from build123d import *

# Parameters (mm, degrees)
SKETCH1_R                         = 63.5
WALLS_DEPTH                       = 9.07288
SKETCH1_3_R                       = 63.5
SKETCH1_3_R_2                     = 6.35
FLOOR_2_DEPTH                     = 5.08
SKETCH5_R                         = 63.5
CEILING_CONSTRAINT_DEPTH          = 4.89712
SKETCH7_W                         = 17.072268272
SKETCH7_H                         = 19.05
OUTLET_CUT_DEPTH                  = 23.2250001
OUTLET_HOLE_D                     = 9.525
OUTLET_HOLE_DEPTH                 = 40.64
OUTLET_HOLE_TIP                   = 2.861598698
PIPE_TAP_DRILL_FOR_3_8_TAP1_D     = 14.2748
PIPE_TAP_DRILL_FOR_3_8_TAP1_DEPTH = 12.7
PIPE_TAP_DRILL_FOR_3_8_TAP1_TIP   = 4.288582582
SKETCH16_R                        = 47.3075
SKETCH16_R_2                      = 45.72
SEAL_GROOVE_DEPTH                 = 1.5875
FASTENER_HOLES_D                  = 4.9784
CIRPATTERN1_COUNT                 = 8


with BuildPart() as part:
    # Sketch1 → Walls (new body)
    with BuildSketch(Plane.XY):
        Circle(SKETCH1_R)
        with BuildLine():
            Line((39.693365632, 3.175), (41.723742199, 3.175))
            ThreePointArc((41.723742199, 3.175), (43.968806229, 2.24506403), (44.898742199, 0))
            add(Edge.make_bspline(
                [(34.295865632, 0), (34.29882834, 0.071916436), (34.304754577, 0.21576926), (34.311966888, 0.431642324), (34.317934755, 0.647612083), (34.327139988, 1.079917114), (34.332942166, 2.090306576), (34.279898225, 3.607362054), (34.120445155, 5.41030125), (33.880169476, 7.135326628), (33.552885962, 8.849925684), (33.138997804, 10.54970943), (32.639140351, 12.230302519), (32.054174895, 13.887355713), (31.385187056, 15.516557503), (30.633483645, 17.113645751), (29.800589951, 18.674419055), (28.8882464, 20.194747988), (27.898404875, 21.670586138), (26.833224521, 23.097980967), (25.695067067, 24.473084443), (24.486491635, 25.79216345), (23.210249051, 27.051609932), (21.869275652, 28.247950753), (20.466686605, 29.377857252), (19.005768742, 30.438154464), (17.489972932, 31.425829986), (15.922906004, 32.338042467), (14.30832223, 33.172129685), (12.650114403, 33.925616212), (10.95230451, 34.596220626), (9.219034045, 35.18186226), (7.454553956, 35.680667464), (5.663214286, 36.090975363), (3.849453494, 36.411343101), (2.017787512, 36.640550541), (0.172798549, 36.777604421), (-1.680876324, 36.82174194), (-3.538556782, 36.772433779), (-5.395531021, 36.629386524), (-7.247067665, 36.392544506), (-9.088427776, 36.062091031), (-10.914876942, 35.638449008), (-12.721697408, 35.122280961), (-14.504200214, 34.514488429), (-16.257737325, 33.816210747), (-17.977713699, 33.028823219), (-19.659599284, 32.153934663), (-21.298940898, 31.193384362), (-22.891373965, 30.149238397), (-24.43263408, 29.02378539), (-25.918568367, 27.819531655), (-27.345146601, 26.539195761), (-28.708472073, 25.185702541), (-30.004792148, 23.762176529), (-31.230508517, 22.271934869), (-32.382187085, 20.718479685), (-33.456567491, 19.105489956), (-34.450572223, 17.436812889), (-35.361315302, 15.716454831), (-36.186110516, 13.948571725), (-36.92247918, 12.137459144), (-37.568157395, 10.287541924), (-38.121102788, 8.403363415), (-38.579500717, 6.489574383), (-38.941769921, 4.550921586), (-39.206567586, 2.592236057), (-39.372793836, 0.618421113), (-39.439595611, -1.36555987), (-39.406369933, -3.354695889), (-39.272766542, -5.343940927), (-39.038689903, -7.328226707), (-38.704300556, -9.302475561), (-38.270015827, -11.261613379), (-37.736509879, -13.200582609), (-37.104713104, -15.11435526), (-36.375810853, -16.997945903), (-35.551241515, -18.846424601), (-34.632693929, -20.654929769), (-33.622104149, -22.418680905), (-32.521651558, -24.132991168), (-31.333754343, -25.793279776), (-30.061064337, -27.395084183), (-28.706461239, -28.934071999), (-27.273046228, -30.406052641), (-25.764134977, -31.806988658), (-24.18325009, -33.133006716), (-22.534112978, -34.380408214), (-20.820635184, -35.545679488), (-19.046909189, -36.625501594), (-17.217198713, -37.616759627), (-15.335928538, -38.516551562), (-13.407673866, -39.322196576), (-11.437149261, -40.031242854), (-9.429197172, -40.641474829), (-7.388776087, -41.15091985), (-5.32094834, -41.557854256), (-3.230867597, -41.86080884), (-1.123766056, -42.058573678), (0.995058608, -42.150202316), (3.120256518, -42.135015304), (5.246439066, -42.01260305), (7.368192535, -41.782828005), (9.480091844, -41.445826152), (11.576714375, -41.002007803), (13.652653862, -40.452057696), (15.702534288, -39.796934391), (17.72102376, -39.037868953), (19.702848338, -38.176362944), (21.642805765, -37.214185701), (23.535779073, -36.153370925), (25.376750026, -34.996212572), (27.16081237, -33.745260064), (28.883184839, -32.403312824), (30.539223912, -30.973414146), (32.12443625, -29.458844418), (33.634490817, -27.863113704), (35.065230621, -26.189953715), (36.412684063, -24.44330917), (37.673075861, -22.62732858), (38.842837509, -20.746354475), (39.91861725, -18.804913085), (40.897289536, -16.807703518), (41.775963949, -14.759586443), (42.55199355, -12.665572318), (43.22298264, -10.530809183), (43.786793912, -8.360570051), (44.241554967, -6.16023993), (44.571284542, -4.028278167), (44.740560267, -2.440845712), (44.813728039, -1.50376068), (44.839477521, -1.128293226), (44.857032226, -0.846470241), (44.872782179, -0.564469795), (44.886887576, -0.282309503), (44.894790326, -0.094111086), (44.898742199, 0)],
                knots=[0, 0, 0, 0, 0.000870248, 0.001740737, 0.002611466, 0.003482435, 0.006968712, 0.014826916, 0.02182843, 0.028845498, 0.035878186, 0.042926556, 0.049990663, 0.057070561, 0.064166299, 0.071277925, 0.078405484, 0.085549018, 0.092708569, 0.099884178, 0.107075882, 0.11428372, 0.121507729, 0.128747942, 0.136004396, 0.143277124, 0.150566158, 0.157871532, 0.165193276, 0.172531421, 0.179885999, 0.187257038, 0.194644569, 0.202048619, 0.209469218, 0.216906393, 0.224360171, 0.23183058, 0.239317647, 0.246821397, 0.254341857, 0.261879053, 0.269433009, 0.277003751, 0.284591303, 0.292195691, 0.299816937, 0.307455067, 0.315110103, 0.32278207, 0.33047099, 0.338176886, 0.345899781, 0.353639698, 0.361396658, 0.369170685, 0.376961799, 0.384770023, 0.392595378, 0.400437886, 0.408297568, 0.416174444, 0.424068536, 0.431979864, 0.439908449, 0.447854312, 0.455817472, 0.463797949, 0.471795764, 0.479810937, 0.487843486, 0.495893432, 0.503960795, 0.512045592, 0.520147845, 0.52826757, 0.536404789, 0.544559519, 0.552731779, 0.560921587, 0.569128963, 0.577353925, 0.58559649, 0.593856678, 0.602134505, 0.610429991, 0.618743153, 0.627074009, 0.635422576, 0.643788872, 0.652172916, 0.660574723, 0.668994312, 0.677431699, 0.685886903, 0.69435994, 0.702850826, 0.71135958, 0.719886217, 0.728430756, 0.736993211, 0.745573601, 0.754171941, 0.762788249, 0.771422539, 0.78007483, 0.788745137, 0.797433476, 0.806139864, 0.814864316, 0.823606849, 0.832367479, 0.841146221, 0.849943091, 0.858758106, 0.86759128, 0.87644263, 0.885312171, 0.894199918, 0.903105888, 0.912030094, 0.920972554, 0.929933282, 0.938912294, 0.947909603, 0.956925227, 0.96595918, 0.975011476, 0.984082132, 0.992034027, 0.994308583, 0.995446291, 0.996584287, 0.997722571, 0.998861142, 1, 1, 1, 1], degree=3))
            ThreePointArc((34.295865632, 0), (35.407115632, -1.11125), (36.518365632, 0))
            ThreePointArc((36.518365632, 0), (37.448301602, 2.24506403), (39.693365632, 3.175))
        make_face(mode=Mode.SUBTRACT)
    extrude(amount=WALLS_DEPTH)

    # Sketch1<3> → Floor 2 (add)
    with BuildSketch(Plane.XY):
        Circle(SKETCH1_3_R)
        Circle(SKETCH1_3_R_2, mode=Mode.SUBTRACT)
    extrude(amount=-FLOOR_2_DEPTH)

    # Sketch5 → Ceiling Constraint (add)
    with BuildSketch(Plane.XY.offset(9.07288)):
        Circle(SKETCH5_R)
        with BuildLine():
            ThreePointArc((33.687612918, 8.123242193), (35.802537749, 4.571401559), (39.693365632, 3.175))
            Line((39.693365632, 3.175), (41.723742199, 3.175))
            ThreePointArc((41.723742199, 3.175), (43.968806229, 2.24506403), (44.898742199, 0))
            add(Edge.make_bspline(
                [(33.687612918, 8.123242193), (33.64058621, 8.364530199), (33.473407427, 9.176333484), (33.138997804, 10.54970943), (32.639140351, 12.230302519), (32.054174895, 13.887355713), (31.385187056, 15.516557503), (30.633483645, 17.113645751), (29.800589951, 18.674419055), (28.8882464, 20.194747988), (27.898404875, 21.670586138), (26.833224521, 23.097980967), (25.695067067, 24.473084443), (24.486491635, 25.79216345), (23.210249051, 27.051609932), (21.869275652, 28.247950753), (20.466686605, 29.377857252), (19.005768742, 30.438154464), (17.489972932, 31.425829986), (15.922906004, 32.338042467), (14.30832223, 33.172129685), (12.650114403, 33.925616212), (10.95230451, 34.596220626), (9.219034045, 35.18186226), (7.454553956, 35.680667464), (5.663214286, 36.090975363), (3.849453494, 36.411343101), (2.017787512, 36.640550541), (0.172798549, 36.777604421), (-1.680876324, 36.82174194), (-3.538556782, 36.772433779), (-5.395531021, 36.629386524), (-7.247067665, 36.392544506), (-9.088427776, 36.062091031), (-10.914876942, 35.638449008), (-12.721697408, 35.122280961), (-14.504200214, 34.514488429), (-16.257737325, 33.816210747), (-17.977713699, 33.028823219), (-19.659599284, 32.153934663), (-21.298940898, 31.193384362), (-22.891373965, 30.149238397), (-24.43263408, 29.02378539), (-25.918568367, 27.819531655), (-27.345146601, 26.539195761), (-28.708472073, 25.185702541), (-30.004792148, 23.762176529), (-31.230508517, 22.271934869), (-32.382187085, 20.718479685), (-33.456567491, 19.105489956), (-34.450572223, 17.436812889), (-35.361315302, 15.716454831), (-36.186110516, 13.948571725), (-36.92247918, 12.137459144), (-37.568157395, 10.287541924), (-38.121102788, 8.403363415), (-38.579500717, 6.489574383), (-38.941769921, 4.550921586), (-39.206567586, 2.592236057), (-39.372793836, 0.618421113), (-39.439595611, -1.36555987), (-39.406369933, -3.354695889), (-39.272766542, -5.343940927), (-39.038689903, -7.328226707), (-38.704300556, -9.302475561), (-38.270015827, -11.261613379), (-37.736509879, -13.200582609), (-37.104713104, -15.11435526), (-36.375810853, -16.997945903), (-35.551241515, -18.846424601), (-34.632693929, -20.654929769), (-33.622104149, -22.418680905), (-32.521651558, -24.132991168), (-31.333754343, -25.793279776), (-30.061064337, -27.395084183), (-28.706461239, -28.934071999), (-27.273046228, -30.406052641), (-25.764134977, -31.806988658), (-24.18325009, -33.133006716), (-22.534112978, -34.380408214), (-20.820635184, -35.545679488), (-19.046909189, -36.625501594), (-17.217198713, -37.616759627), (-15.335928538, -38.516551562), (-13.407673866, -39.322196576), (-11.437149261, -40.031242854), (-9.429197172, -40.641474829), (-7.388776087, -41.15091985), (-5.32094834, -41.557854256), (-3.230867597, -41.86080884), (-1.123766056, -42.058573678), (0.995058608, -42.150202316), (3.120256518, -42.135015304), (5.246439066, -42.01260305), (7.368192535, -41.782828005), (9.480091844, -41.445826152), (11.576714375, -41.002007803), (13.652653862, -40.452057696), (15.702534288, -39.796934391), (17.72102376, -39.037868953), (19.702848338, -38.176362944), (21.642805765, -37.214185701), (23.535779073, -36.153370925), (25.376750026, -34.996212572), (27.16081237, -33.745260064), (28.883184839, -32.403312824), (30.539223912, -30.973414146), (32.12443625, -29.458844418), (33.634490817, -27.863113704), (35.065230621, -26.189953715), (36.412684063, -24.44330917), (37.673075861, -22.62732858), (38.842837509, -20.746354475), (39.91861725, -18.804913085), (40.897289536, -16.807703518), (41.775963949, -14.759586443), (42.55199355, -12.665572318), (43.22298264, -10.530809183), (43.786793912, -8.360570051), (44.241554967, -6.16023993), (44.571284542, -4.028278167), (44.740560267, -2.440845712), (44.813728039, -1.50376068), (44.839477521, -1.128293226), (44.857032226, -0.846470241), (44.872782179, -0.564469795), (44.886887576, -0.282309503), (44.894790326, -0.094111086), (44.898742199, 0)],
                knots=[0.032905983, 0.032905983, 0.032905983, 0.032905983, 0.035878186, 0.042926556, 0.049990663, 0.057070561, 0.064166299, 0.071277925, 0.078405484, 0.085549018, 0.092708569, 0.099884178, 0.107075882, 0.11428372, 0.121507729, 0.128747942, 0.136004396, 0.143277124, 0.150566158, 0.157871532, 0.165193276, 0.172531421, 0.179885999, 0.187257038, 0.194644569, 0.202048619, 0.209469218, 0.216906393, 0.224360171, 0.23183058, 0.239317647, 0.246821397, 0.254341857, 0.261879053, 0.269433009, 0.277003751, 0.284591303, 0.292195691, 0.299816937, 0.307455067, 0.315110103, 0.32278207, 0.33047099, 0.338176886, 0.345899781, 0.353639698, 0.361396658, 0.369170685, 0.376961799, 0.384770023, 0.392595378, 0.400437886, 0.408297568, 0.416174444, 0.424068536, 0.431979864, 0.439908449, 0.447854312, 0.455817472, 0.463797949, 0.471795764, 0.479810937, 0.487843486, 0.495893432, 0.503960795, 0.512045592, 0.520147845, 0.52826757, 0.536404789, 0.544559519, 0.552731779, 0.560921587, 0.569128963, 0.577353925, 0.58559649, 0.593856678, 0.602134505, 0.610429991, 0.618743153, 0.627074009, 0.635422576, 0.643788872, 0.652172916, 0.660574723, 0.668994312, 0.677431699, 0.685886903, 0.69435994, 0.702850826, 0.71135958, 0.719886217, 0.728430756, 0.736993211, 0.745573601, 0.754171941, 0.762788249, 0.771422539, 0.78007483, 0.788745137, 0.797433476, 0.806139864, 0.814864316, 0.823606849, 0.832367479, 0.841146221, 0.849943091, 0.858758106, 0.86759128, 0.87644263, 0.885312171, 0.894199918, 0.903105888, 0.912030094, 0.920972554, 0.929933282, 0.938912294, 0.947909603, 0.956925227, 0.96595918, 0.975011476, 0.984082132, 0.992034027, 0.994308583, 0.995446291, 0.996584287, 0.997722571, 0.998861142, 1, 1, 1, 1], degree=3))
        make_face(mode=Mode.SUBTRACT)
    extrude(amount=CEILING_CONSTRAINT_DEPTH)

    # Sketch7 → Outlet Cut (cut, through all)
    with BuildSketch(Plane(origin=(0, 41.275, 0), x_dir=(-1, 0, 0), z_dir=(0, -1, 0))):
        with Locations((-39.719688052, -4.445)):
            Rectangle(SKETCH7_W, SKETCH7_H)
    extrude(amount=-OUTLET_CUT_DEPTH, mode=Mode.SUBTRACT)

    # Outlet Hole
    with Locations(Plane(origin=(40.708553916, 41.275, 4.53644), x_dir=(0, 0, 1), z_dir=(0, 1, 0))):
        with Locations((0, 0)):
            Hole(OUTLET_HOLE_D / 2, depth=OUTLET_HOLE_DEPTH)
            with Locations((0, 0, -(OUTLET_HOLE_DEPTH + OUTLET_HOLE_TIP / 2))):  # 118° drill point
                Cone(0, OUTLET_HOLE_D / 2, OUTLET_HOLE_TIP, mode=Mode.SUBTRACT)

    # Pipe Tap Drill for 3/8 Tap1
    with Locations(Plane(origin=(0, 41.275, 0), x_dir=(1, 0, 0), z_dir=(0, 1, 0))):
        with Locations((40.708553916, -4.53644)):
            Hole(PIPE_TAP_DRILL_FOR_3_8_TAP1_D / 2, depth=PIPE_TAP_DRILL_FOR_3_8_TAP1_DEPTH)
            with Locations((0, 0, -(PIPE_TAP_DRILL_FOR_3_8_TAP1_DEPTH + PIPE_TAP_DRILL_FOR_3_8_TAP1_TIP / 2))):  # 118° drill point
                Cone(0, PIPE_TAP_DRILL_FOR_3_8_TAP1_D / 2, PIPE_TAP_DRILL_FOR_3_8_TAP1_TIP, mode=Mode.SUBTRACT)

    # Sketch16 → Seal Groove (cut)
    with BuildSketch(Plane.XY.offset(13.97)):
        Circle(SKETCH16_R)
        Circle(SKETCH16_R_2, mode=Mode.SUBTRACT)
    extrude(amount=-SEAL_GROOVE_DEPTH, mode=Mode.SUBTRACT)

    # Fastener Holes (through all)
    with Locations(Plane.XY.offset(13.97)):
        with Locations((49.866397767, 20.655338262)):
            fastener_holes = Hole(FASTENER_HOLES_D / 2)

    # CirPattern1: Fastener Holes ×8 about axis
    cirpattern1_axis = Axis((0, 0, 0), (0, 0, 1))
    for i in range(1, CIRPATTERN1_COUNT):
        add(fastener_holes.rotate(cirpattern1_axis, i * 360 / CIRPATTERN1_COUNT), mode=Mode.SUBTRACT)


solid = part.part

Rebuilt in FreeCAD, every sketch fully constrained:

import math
import FreeCAD as App
import Part
import Sketcher

V = App.Vector
Q = App.Units.Quantity

doc = App.newDocument("Part")
params = doc.addObject("Spreadsheet::Sheet", "Params")
for row, (alias, value) in enumerate([
    ("sketch1_diameter", "5 in"),
    ("sketch1_radius", "0.125 in"),
    ("pad1_length", "0.3572 in"),
    ("sketch2_diameter", "5 in"),
    ("sketch2_diameter2", "0.5 in"),
    ("pad2_length", "0.2 in"),
    ("sketch3_diameter", "5 in"),
    ("sketch3_radius", "0.125 in"),
    ("pad3_length", "0.1928 in"),
    ("sketch4_height", "0.75 in"),
    ("sketch5_diameter", "0.375 in"),
    ("hole_diameter", "0.375 in"),
    ("hole_depth", "1.6 in"),
    ("sketch6_diameter", "0.562 in"),
    ("hole2_diameter", "0.562 in"),
    ("hole2_depth", "0.5 in"),
    ("sketch7_diameter", "3.6 in"),
    ("sketch7_diameter2", "3.725 in"),
    ("pocket2_length", "0.0625 in"),
    ("sketch8_diameter", "0.196 in"),
    ("hole3_diameter", "0.196 in"),
], start=1):
    params.set(f"A{row}", alias)
    params.set(f"B{row}", "=" + value)
    params.setAlias(f"B{row}", alias)

body = doc.addObject("PartDesign::Body", "Body")

# Sketch on XY plane
sketch1 = body.newObject("Sketcher::SketchObject", "Sketch")
sketch1.AttachmentSupport = (doc.getObject("XY_Plane"), [""])
sketch1.MapMode = "FlatFace"
sketch1.addGeometry([
    Part.Circle(V(0, 0, 0), V(0, 0, 1), 63.5),  # 0
    Part.ArcOfCircle(Part.Circle(V(39.693366, 0, 0), V(0, 0, 1), 3.175), math.radians(90), math.radians(180)),  # 1
    Part.LineSegment(V(39.693366, 3.175, 0), V(41.723742, 3.175, 0)),  # 2
    Part.ArcOfCircle(Part.Circle(V(41.723742, 0, 0), V(0, 0, 1), 3.175), math.radians(0), math.radians(90)),  # 3
    Part.BSplineCurve([V(34.295866, 0, 0), V(34.298828, 0.071916, 0), V(34.304755, 0.215769, 0), V(34.311967, 0.431642, 0), V(34.317935, 0.647612, 0), V(34.32714, 1.079917, 0), V(34.332942, 2.090307, 0), V(34.279898, 3.607362, 0), V(34.120445, 5.410301, 0), V(33.880169, 7.135327, 0), V(33.552886, 8.849926, 0), V(33.138998, 10.549709, 0), V(32.63914, 12.230303, 0), V(32.054175, 13.887356, 0), V(31.385187, 15.516558, 0), V(30.633484, 17.113646, 0), V(29.80059, 18.674419, 0), V(28.888246, 20.194748, 0), V(27.898405, 21.670586, 0), V(26.833225, 23.097981, 0), V(25.695067, 24.473084, 0), V(24.486492, 25.792163, 0), V(23.210249, 27.05161, 0), V(21.869276, 28.247951, 0), V(20.466687, 29.377857, 0), V(19.005769, 30.438154, 0), V(17.489973, 31.42583, 0), V(15.922906, 32.338042, 0), V(14.308322, 33.17213, 0), V(12.650114, 33.925616, 0), V(10.952305, 34.596221, 0), V(9.219034, 35.181862, 0), V(7.454554, 35.680667, 0), V(5.663214, 36.090975, 0), V(3.849453, 36.411343, 0), V(2.017788, 36.640551, 0), V(0.172799, 36.777604, 0), V(-1.680876, 36.821742, 0), V(-3.538557, 36.772434, 0), V(-5.395531, 36.629387, 0), V(-7.247068, 36.392545, 0), V(-9.088428, 36.062091, 0), V(-10.914877, 35.638449, 0), V(-12.721697, 35.122281, 0), V(-14.5042, 34.514488, 0), V(-16.257737, 33.816211, 0), V(-17.977714, 33.028823, 0), V(-19.659599, 32.153935, 0), V(-21.298941, 31.193384, 0), V(-22.891374, 30.149238, 0), V(-24.432634, 29.023785, 0), V(-25.918568, 27.819532, 0), V(-27.345147, 26.539196, 0), V(-28.708472, 25.185703, 0), V(-30.004792, 23.762177, 0), V(-31.230509, 22.271935, 0), V(-32.382187, 20.71848, 0), V(-33.456567, 19.10549, 0), V(-34.450572, 17.436813, 0), V(-35.361315, 15.716455, 0), V(-36.186111, 13.948572, 0), V(-36.922479, 12.137459, 0), V(-37.568157, 10.287542, 0), V(-38.121103, 8.403363, 0), V(-38.579501, 6.489574, 0), V(-38.94177, 4.550922, 0), V(-39.206568, 2.592236, 0), V(-39.372794, 0.618421, 0), V(-39.439596, -1.36556, 0), V(-39.40637, -3.354696, 0), V(-39.272767, -5.343941, 0), V(-39.03869, -7.328227, 0), V(-38.704301, -9.302476, 0), V(-38.270016, -11.261613, 0), V(-37.73651, -13.200583, 0), V(-37.104713, -15.114355, 0), V(-36.375811, -16.997946, 0), V(-35.551242, -18.846425, 0), V(-34.632694, -20.65493, 0), V(-33.622104, -22.418681, 0), V(-32.521652, -24.132991, 0), V(-31.333754, -25.79328, 0), V(-30.061064, -27.395084, 0), V(-28.706461, -28.934072, 0), V(-27.273046, -30.406053, 0), V(-25.764135, -31.806989, 0), V(-24.18325, -33.133007, 0), V(-22.534113, -34.380408, 0), V(-20.820635, -35.545679, 0), V(-19.046909, -36.625502, 0), V(-17.217199, -37.61676, 0), V(-15.335929, -38.516552, 0), V(-13.407674, -39.322197, 0), V(-11.437149, -40.031243, 0), V(-9.429197, -40.641475, 0), V(-7.388776, -41.15092, 0), V(-5.320948, -41.557854, 0), V(-3.230868, -41.860809, 0), V(-1.123766, -42.058574, 0), V(0.995059, -42.150202, 0), V(3.120257, -42.135015, 0), V(5.246439, -42.012603, 0), V(7.368193, -41.782828, 0), V(9.480092, -41.445826, 0), V(11.576714, -41.002008, 0), V(13.652654, -40.452058, 0), V(15.702534, -39.796934, 0), V(17.721024, -39.037869, 0), V(19.702848, -38.176363, 0), V(21.642806, -37.214186, 0), V(23.535779, -36.153371, 0), V(25.37675, -34.996213, 0), V(27.160812, -33.74526, 0), V(28.883185, -32.403313, 0), V(30.539224, -30.973414, 0), V(32.124436, -29.458844, 0), V(33.634491, -27.863114, 0), V(35.065231, -26.189954, 0), V(36.412684, -24.443309, 0), V(37.673076, -22.627329, 0), V(38.842838, -20.746354, 0), V(39.918617, -18.804913, 0), V(40.89729, -16.807704, 0), V(41.775964, -14.759586, 0), V(42.551994, -12.665572, 0), V(43.222983, -10.530809, 0), V(43.786794, -8.36057, 0), V(44.241555, -6.16024, 0), V(44.571285, -4.028278, 0), V(44.74056, -2.440846, 0), V(44.813728, -1.503761, 0), V(44.839478, -1.128293, 0), V(44.857032, -0.84647, 0), V(44.872782, -0.56447, 0), V(44.886888, -0.28231, 0), V(44.89479, -0.094111, 0), V(44.898742, 0, 0)], [4, 1, 1, 1, 1, 1, 1, 1, 1, 1, 1, 1, 1, 1, 1, 1, 1, 1, 1, 1, 1, 1, 1, 1, 1, 1, 1, 1, 1, 1, 1, 1, 1, 1, 1, 1, 1, 1, 1, 1, 1, 1, 1, 1, 1, 1, 1, 1, 1, 1, 1, 1, 1, 1, 1, 1, 1, 1, 1, 1, 1, 1, 1, 1, 1, 1, 1, 1, 1, 1, 1, 1, 1, 1, 1, 1, 1, 1, 1, 1, 1, 1, 1, 1, 1, 1, 1, 1, 1, 1, 1, 1, 1, 1, 1, 1, 1, 1, 1, 1, 1, 1, 1, 1, 1, 1, 1, 1, 1, 1, 1, 1, 1, 1, 1, 1, 1, 1, 1, 1, 1, 1, 1, 1, 1, 1, 1, 1, 1, 1, 1, 1, 1, 1, 4], [0, 0.000870248, 0.001740737, 0.002611466, 0.003482435, 0.006968712, 0.014826916, 0.02182843, 0.028845498, 0.035878186, 0.042926556, 0.049990663, 0.057070561, 0.064166299, 0.071277925, 0.078405484, 0.085549018, 0.092708569, 0.099884178, 0.107075882, 0.11428372, 0.121507729, 0.128747942, 0.136004396, 0.143277124, 0.150566158, 0.157871532, 0.165193276, 0.172531421, 0.179885999, 0.187257038, 0.194644569, 0.202048619, 0.209469218, 0.216906393, 0.224360171, 0.23183058, 0.239317647, 0.246821397, 0.254341857, 0.261879053, 0.269433009, 0.277003751, 0.284591303, 0.292195691, 0.299816937, 0.307455067, 0.315110103, 0.32278207, 0.33047099, 0.338176886, 0.345899781, 0.353639698, 0.361396658, 0.369170685, 0.376961799, 0.384770023, 0.392595378, 0.400437886, 0.408297568, 0.416174444, 0.424068536, 0.431979864, 0.439908449, 0.447854312, 0.455817472, 0.463797949, 0.471795764, 0.479810937, 0.487843486, 0.495893432, 0.503960795, 0.512045592, 0.520147845, 0.52826757, 0.536404789, 0.544559519, 0.552731779, 0.560921587, 0.569128963, 0.577353925, 0.58559649, 0.593856678, 0.602134505, 0.610429991, 0.618743153, 0.627074009, 0.635422576, 0.643788872, 0.652172916, 0.660574723, 0.668994312, 0.677431699, 0.685886903, 0.69435994, 0.702850826, 0.71135958, 0.719886217, 0.728430756, 0.736993211, 0.745573601, 0.754171941, 0.762788249, 0.771422539, 0.78007483, 0.788745137, 0.797433476, 0.806139864, 0.814864316, 0.823606849, 0.832367479, 0.841146221, 0.849943091, 0.858758106, 0.86759128, 0.87644263, 0.885312171, 0.894199918, 0.903105888, 0.912030094, 0.920972554, 0.929933282, 0.938912294, 0.947909603, 0.956925227, 0.96595918, 0.975011476, 0.984082132, 0.992034027, 0.994308583, 0.995446291, 0.996584287, 0.997722571, 0.998861142, 1], False, 3, [1, 1, 1, 1, 1, 1, 1, 1, 1, 1, 1, 1, 1, 1, 1, 1, 1, 1, 1, 1, 1, 1, 1, 1, 1, 1, 1, 1, 1, 1, 1, 1, 1, 1, 1, 1, 1, 1, 1, 1, 1, 1, 1, 1, 1, 1, 1, 1, 1, 1, 1, 1, 1, 1, 1, 1, 1, 1, 1, 1, 1, 1, 1, 1, 1, 1, 1, 1, 1, 1, 1, 1, 1, 1, 1, 1, 1, 1, 1, 1, 1, 1, 1, 1, 1, 1, 1, 1, 1, 1, 1, 1, 1, 1, 1, 1, 1, 1, 1, 1, 1, 1, 1, 1, 1, 1, 1, 1, 1, 1, 1, 1, 1, 1, 1, 1, 1, 1, 1, 1, 1, 1, 1, 1, 1, 1, 1, 1, 1, 1, 1, 1, 1, 1, 1, 1, 1], False),  # 4
    Part.ArcOfCircle(Part.Circle(V(35.407116, 0, 0), V(0, 0, 1), 1.11125), math.radians(180), math.radians(360)),  # 5
], False)
sketch1.addConstraint([
    Sketcher.Constraint("Block", 4),
    Sketcher.Constraint("Tangent", 1, 1, 2, 1),
    Sketcher.Constraint("Tangent", 2, 2, 3, 2),
    Sketcher.Constraint("Coincident", 3, 1, 4, 2),
    Sketcher.Constraint("Coincident", 4, 1, 5, 1),
    Sketcher.Constraint("Tangent", 5, 2, 1, 2),
    Sketcher.Constraint("Horizontal", 2),
    Sketcher.Constraint("Coincident", 0, 3, -1, 1),
    Sketcher.Constraint("Equal", 1, 3),
    Sketcher.Constraint("PointOnObject", 1, 3, -1),
    Sketcher.Constraint("PointOnObject", 5, 3, -1),
    Sketcher.Constraint("Diameter", 0, Q("5 in")),
    Sketcher.Constraint("Radius", 1, Q("0.125 in")),
    Sketcher.Constraint("Radius", 5, Q("1.11125 mm")),
])
sketch1.setExpression("Constraints[11]", "Params.sketch1_diameter")
sketch1.setExpression("Constraints[12]", "Params.sketch1_radius")
pad1 = body.newObject("PartDesign::Pad", "Pad")
pad1.Profile = sketch1
pad1.setExpression("Length", "Params.pad1_length")

# Sketch on XY plane
sketch2 = body.newObject("Sketcher::SketchObject", "Sketch001")
sketch2.AttachmentSupport = (doc.getObject("XY_Plane"), [""])
sketch2.MapMode = "FlatFace"
sketch2.addGeometry([
    Part.Circle(V(0, 0, 0), V(0, 0, 1), 64),
    Part.Circle(V(0, 0, 0), V(0, 0, 1), 6),
], False)
sketch2.addConstraint([
    Sketcher.Constraint("Coincident", 0, 3, -1, 1),
    Sketcher.Constraint("Coincident", 1, 3, -1, 1),
    Sketcher.Constraint("Diameter", 0, Q("5 in")),
    Sketcher.Constraint("Diameter", 1, Q("0.5 in")),
])
sketch2.setExpression("Constraints[2]", "Params.sketch2_diameter")
sketch2.setExpression("Constraints[3]", "Params.sketch2_diameter2")
pad2 = body.newObject("PartDesign::Pad", "Pad001")
pad2.Profile = sketch2
pad2.setExpression("Length", "Params.pad2_length")
pad2.Reversed = True

# Sketch on XY plane
sketch3 = body.newObject("Sketcher::SketchObject", "Sketch002")
sketch3.AttachmentSupport = (doc.getObject("XY_Plane"), [""])
sketch3.MapMode = "FlatFace"
sketch3.AttachmentOffset = App.Placement(V(0, 0, 0.3572 * 25.4), App.Rotation())
sketch3.addGeometry([
    Part.Circle(V(0, 0, 0), V(0, 0, 1), 63.5),  # 0
    Part.BSplineCurve([V(33.687613, 8.123242, 0), V(33.640586, 8.36453, 0), V(33.473407, 9.176333, 0), V(33.138998, 10.549709, 0), V(32.63914, 12.230303, 0), V(32.054175, 13.887356, 0), V(31.385187, 15.516558, 0), V(30.633484, 17.113646, 0), V(29.80059, 18.674419, 0), V(28.888246, 20.194748, 0), V(27.898405, 21.670586, 0), V(26.833225, 23.097981, 0), V(25.695067, 24.473084, 0), V(24.486492, 25.792163, 0), V(23.210249, 27.05161, 0), V(21.869276, 28.247951, 0), V(20.466687, 29.377857, 0), V(19.005769, 30.438154, 0), V(17.489973, 31.42583, 0), V(15.922906, 32.338042, 0), V(14.308322, 33.17213, 0), V(12.650114, 33.925616, 0), V(10.952305, 34.596221, 0), V(9.219034, 35.181862, 0), V(7.454554, 35.680667, 0), V(5.663214, 36.090975, 0), V(3.849453, 36.411343, 0), V(2.017788, 36.640551, 0), V(0.172799, 36.777604, 0), V(-1.680876, 36.821742, 0), V(-3.538557, 36.772434, 0), V(-5.395531, 36.629387, 0), V(-7.247068, 36.392545, 0), V(-9.088428, 36.062091, 0), V(-10.914877, 35.638449, 0), V(-12.721697, 35.122281, 0), V(-14.5042, 34.514488, 0), V(-16.257737, 33.816211, 0), V(-17.977714, 33.028823, 0), V(-19.659599, 32.153935, 0), V(-21.298941, 31.193384, 0), V(-22.891374, 30.149238, 0), V(-24.432634, 29.023785, 0), V(-25.918568, 27.819532, 0), V(-27.345147, 26.539196, 0), V(-28.708472, 25.185703, 0), V(-30.004792, 23.762177, 0), V(-31.230509, 22.271935, 0), V(-32.382187, 20.71848, 0), V(-33.456567, 19.10549, 0), V(-34.450572, 17.436813, 0), V(-35.361315, 15.716455, 0), V(-36.186111, 13.948572, 0), V(-36.922479, 12.137459, 0), V(-37.568157, 10.287542, 0), V(-38.121103, 8.403363, 0), V(-38.579501, 6.489574, 0), V(-38.94177, 4.550922, 0), V(-39.206568, 2.592236, 0), V(-39.372794, 0.618421, 0), V(-39.439596, -1.36556, 0), V(-39.40637, -3.354696, 0), V(-39.272767, -5.343941, 0), V(-39.03869, -7.328227, 0), V(-38.704301, -9.302476, 0), V(-38.270016, -11.261613, 0), V(-37.73651, -13.200583, 0), V(-37.104713, -15.114355, 0), V(-36.375811, -16.997946, 0), V(-35.551242, -18.846425, 0), V(-34.632694, -20.65493, 0), V(-33.622104, -22.418681, 0), V(-32.521652, -24.132991, 0), V(-31.333754, -25.79328, 0), V(-30.061064, -27.395084, 0), V(-28.706461, -28.934072, 0), V(-27.273046, -30.406053, 0), V(-25.764135, -31.806989, 0), V(-24.18325, -33.133007, 0), V(-22.534113, -34.380408, 0), V(-20.820635, -35.545679, 0), V(-19.046909, -36.625502, 0), V(-17.217199, -37.61676, 0), V(-15.335929, -38.516552, 0), V(-13.407674, -39.322197, 0), V(-11.437149, -40.031243, 0), V(-9.429197, -40.641475, 0), V(-7.388776, -41.15092, 0), V(-5.320948, -41.557854, 0), V(-3.230868, -41.860809, 0), V(-1.123766, -42.058574, 0), V(0.995059, -42.150202, 0), V(3.120257, -42.135015, 0), V(5.246439, -42.012603, 0), V(7.368193, -41.782828, 0), V(9.480092, -41.445826, 0), V(11.576714, -41.002008, 0), V(13.652654, -40.452058, 0), V(15.702534, -39.796934, 0), V(17.721024, -39.037869, 0), V(19.702848, -38.176363, 0), V(21.642806, -37.214186, 0), V(23.535779, -36.153371, 0), V(25.37675, -34.996213, 0), V(27.160812, -33.74526, 0), V(28.883185, -32.403313, 0), V(30.539224, -30.973414, 0), V(32.124436, -29.458844, 0), V(33.634491, -27.863114, 0), V(35.065231, -26.189954, 0), V(36.412684, -24.443309, 0), V(37.673076, -22.627329, 0), V(38.842838, -20.746354, 0), V(39.918617, -18.804913, 0), V(40.89729, -16.807704, 0), V(41.775964, -14.759586, 0), V(42.551994, -12.665572, 0), V(43.222983, -10.530809, 0), V(43.786794, -8.36057, 0), V(44.241555, -6.16024, 0), V(44.571285, -4.028278, 0), V(44.74056, -2.440846, 0), V(44.813728, -1.503761, 0), V(44.839478, -1.128293, 0), V(44.857032, -0.84647, 0), V(44.872782, -0.56447, 0), V(44.886888, -0.28231, 0), V(44.89479, -0.094111, 0), V(44.898742, 0, 0)], [4, 1, 1, 1, 1, 1, 1, 1, 1, 1, 1, 1, 1, 1, 1, 1, 1, 1, 1, 1, 1, 1, 1, 1, 1, 1, 1, 1, 1, 1, 1, 1, 1, 1, 1, 1, 1, 1, 1, 1, 1, 1, 1, 1, 1, 1, 1, 1, 1, 1, 1, 1, 1, 1, 1, 1, 1, 1, 1, 1, 1, 1, 1, 1, 1, 1, 1, 1, 1, 1, 1, 1, 1, 1, 1, 1, 1, 1, 1, 1, 1, 1, 1, 1, 1, 1, 1, 1, 1, 1, 1, 1, 1, 1, 1, 1, 1, 1, 1, 1, 1, 1, 1, 1, 1, 1, 1, 1, 1, 1, 1, 1, 1, 1, 1, 1, 1, 1, 1, 1, 1, 1, 1, 1, 1, 1, 4], [0.032905983, 0.035878186, 0.042926556, 0.049990663, 0.057070561, 0.064166299, 0.071277925, 0.078405484, 0.085549018, 0.092708569, 0.099884178, 0.107075882, 0.11428372, 0.121507729, 0.128747942, 0.136004396, 0.143277124, 0.150566158, 0.157871532, 0.165193276, 0.172531421, 0.179885999, 0.187257038, 0.194644569, 0.202048619, 0.209469218, 0.216906393, 0.224360171, 0.23183058, 0.239317647, 0.246821397, 0.254341857, 0.261879053, 0.269433009, 0.277003751, 0.284591303, 0.292195691, 0.299816937, 0.307455067, 0.315110103, 0.32278207, 0.33047099, 0.338176886, 0.345899781, 0.353639698, 0.361396658, 0.369170685, 0.376961799, 0.384770023, 0.392595378, 0.400437886, 0.408297568, 0.416174444, 0.424068536, 0.431979864, 0.439908449, 0.447854312, 0.455817472, 0.463797949, 0.471795764, 0.479810937, 0.487843486, 0.495893432, 0.503960795, 0.512045592, 0.520147845, 0.52826757, 0.536404789, 0.544559519, 0.552731779, 0.560921587, 0.569128963, 0.577353925, 0.58559649, 0.593856678, 0.602134505, 0.610429991, 0.618743153, 0.627074009, 0.635422576, 0.643788872, 0.652172916, 0.660574723, 0.668994312, 0.677431699, 0.685886903, 0.69435994, 0.702850826, 0.71135958, 0.719886217, 0.728430756, 0.736993211, 0.745573601, 0.754171941, 0.762788249, 0.771422539, 0.78007483, 0.788745137, 0.797433476, 0.806139864, 0.814864316, 0.823606849, 0.832367479, 0.841146221, 0.849943091, 0.858758106, 0.86759128, 0.87644263, 0.885312171, 0.894199918, 0.903105888, 0.912030094, 0.920972554, 0.929933282, 0.938912294, 0.947909603, 0.956925227, 0.96595918, 0.975011476, 0.984082132, 0.992034027, 0.994308583, 0.995446291, 0.996584287, 0.997722571, 0.998861142, 1], False, 3, [1, 1, 1, 1, 1, 1, 1, 1, 1, 1, 1, 1, 1, 1, 1, 1, 1, 1, 1, 1, 1, 1, 1, 1, 1, 1, 1, 1, 1, 1, 1, 1, 1, 1, 1, 1, 1, 1, 1, 1, 1, 1, 1, 1, 1, 1, 1, 1, 1, 1, 1, 1, 1, 1, 1, 1, 1, 1, 1, 1, 1, 1, 1, 1, 1, 1, 1, 1, 1, 1, 1, 1, 1, 1, 1, 1, 1, 1, 1, 1, 1, 1, 1, 1, 1, 1, 1, 1, 1, 1, 1, 1, 1, 1, 1, 1, 1, 1, 1, 1, 1, 1, 1, 1, 1, 1, 1, 1, 1, 1, 1, 1, 1, 1, 1, 1, 1, 1, 1, 1, 1, 1, 1, 1, 1, 1, 1, 1, 1], False),  # 1
    Part.ArcOfCircle(Part.Circle(V(39.693366, 9.293755, 0), V(0, 0, 1), 6.118755), math.radians(-168.971385), math.radians(-90)),  # 2
    Part.LineSegment(V(39.693366, 3.175, 0), V(41.723742, 3.175, 0)),  # 3
    Part.ArcOfCircle(Part.Circle(V(41.723742, 0, 0), V(0, 0, 1), 3.175), math.radians(0), math.radians(90)),  # 4
], False)
sketch3.addConstraint([
    Sketcher.Constraint("Block", 1),
    Sketcher.Constraint("Coincident", 1, 1, 2, 1),
    Sketcher.Constraint("Tangent", 2, 2, 3, 1),
    Sketcher.Constraint("Tangent", 3, 2, 4, 2),
    Sketcher.Constraint("Coincident", 4, 1, 1, 2),
    Sketcher.Constraint("Horizontal", 3),
    Sketcher.Constraint("Coincident", 0, 3, -1, 1),
    Sketcher.Constraint("PointOnObject", 4, 3, -1),
    Sketcher.Constraint("Diameter", 0, Q("5 in")),
    Sketcher.Constraint("Radius", 4, Q("0.125 in")),
    Sketcher.Constraint("Radius", 2, Q("6.118755 mm")),
])
sketch3.setExpression("Constraints[8]", "Params.sketch3_diameter")
sketch3.setExpression("Constraints[9]", "Params.sketch3_radius")
pad3 = body.newObject("PartDesign::Pad", "Pad002")
pad3.Profile = sketch3
pad3.setExpression("Length", "Params.pad3_length")

# Sketch on XZ plane
sketch4 = body.newObject("Sketcher::SketchObject", "Sketch003")
sketch4.AttachmentSupport = (doc.getObject("XZ_Plane"), [""])
sketch4.MapMode = "FlatFace"
sketch4.AttachmentOffset = App.Placement(V(0, 0, -1.625 * 25.4), App.Rotation())
sketch4.addGeometry([
    Part.LineSegment(V(48, -5, 0), V(48, 14, 0)),
    Part.LineSegment(V(48, 14, 0), V(31, 14, 0)),
    Part.LineSegment(V(31, 14, 0), V(31, -5, 0)),
    Part.LineSegment(V(31, -5, 0), V(48, -5, 0)),
], False)
sketch4.addConstraint([
    Sketcher.Constraint("Coincident", 0, 2, 1, 1),
    Sketcher.Constraint("Coincident", 1, 2, 2, 1),
    Sketcher.Constraint("Coincident", 2, 2, 3, 1),
    Sketcher.Constraint("Coincident", 3, 2, 0, 1),
    Sketcher.Constraint("Vertical", 0),
    Sketcher.Constraint("Horizontal", 1),
    Sketcher.Constraint("Vertical", 2),
    Sketcher.Constraint("Horizontal", 3),
    Sketcher.Constraint("DistanceY", 0, 1, 0, 2, Q("0.75 in")),
    Sketcher.Constraint("DistanceY", 2, 2, -1, 1, Q("0.2 in")),
    Sketcher.Constraint("DistanceX", 1, 2, 1, 1, Q("17.072268 mm")),
    Sketcher.Constraint("DistanceX", -1, 1, 0, 2, Q("48.255822 mm")),
])
sketch4.setExpression("Constraints[8]", "Params.sketch4_height")
pocket1 = body.newObject("PartDesign::Pocket", "Pocket")
pocket1.Profile = sketch4
pocket1.Type = "ThroughAll"

# Sketch on XZ plane
sketch5 = body.newObject("Sketcher::SketchObject", "Sketch004")
sketch5.AttachmentSupport = (doc.getObject("XZ_Plane"), [""])
sketch5.MapMode = "FlatFace"
sketch5.AttachmentOffset = App.Placement(V(0, 0, -1.625 * 25.4), App.Rotation())
sketch5.addGeometry(Part.Circle(V(40.7, 4.5, 0), V(0, 0, 1), 4.8), False)
sketch5.addConstraint([
    Sketcher.Constraint("Diameter", 0, Q("0.375 in")),
    Sketcher.Constraint("DistanceY", -1, 1, 0, 3, Q("0.1786 in")),
    Sketcher.Constraint("DistanceX", -1, 1, 0, 3, Q("40.708554 mm")),
])
sketch5.setExpression("Constraints[0]", "Params.sketch5_diameter")
doc.recompute()
hole = body.newObject("PartDesign::Hole", "Hole")
hole.Profile = sketch5
hole.ThreadType = "None"
hole.setExpression("Diameter", "Params.hole_diameter")
hole.DepthType = "Dimension"
hole.setExpression("Depth", "Params.hole_depth")
hole.DrillPoint = "Angled"
hole.DrillPointAngle = 118
hole.Reversed = True

# Sketch on XZ plane
sketch6 = body.newObject("Sketcher::SketchObject", "Sketch005")
sketch6.AttachmentSupport = (doc.getObject("XZ_Plane"), [""])
sketch6.MapMode = "FlatFace"
sketch6.AttachmentOffset = App.Placement(V(0, 0, -1.625 * 25.4), App.Rotation())
sketch6.addGeometry(Part.Circle(V(41, 5, 0), V(0, 0, 1), 7), False)
sketch6.addConstraint([
    Sketcher.Constraint("Diameter", 0, Q("0.562 in")),
    Sketcher.Constraint("DistanceY", -1, 1, 0, 3, Q("0.1786 in")),
    Sketcher.Constraint("DistanceX", -1, 1, 0, 3, Q("40.708554 mm")),
])
sketch6.setExpression("Constraints[0]", "Params.sketch6_diameter")
doc.recompute()
hole2 = body.newObject("PartDesign::Hole", "Hole001")
hole2.Profile = sketch6
hole2.ThreadType = "None"
hole2.setExpression("Diameter", "Params.hole2_diameter")
hole2.DepthType = "Dimension"
hole2.setExpression("Depth", "Params.hole2_depth")
hole2.DrillPoint = "Angled"
hole2.DrillPointAngle = 118
hole2.Reversed = True

# Sketch on XY plane
sketch7 = body.newObject("Sketcher::SketchObject", "Sketch006")
sketch7.AttachmentSupport = (doc.getObject("XY_Plane"), [""])
sketch7.MapMode = "FlatFace"
sketch7.AttachmentOffset = App.Placement(V(0, 0, 0.55 * 25.4), App.Rotation())
sketch7.addGeometry([
    Part.Circle(V(0, 0, 0), V(0, 0, 1), 47),
    Part.Circle(V(0, 0, 0), V(0, 0, 1), 46),
], False)
sketch7.addConstraint([
    Sketcher.Constraint("Coincident", 0, 3, -1, 1),
    Sketcher.Constraint("Coincident", 1, 3, -1, 1),
    Sketcher.Constraint("Diameter", 1, Q("3.6 in")),
    Sketcher.Constraint("Diameter", 0, Q("3.725 in")),
])
sketch7.setExpression("Constraints[2]", "Params.sketch7_diameter")
sketch7.setExpression("Constraints[3]", "Params.sketch7_diameter2")
pocket2 = body.newObject("PartDesign::Pocket", "Pocket001")
pocket2.Profile = sketch7
pocket2.setExpression("Length", "Params.pocket2_length")

# Sketch on XY plane
sketch8 = body.newObject("Sketcher::SketchObject", "Sketch007")
sketch8.AttachmentSupport = (doc.getObject("XY_Plane"), [""])
sketch8.MapMode = "FlatFace"
sketch8.AttachmentOffset = App.Placement(V(0, 0, 0.55 * 25.4), App.Rotation())
sketch8.addGeometry(Part.Circle(V(49.9, 20.7, 0), V(0, 0, 1), 2.5), False)
sketch8.addConstraint([
    Sketcher.Constraint("Diameter", 0, Q("0.196 in")),
    Sketcher.Constraint("DistanceY", -1, 1, 0, 3, Q("20.655338 mm")),
    Sketcher.Constraint("DistanceX", -1, 1, 0, 3, Q("49.866398 mm")),
])
sketch8.setExpression("Constraints[0]", "Params.sketch8_diameter")
doc.recompute()
hole3 = body.newObject("PartDesign::Hole", "Hole002")
hole3.Profile = sketch8
hole3.ThreadType = "None"
hole3.setExpression("Diameter", "Params.hole3_diameter")
hole3.DepthType = "ThroughAll"
doc.recompute()

polarpattern = body.newObject("PartDesign::PolarPattern", "PolarPattern")
polarpattern.Originals = [hole3]
polarpattern.Axis = (doc.getObject("Z_Axis"), [""])
polarpattern.Angle = 360
polarpattern.Occurrences = 8
body.Tip = polarpattern

doc.recompute()
